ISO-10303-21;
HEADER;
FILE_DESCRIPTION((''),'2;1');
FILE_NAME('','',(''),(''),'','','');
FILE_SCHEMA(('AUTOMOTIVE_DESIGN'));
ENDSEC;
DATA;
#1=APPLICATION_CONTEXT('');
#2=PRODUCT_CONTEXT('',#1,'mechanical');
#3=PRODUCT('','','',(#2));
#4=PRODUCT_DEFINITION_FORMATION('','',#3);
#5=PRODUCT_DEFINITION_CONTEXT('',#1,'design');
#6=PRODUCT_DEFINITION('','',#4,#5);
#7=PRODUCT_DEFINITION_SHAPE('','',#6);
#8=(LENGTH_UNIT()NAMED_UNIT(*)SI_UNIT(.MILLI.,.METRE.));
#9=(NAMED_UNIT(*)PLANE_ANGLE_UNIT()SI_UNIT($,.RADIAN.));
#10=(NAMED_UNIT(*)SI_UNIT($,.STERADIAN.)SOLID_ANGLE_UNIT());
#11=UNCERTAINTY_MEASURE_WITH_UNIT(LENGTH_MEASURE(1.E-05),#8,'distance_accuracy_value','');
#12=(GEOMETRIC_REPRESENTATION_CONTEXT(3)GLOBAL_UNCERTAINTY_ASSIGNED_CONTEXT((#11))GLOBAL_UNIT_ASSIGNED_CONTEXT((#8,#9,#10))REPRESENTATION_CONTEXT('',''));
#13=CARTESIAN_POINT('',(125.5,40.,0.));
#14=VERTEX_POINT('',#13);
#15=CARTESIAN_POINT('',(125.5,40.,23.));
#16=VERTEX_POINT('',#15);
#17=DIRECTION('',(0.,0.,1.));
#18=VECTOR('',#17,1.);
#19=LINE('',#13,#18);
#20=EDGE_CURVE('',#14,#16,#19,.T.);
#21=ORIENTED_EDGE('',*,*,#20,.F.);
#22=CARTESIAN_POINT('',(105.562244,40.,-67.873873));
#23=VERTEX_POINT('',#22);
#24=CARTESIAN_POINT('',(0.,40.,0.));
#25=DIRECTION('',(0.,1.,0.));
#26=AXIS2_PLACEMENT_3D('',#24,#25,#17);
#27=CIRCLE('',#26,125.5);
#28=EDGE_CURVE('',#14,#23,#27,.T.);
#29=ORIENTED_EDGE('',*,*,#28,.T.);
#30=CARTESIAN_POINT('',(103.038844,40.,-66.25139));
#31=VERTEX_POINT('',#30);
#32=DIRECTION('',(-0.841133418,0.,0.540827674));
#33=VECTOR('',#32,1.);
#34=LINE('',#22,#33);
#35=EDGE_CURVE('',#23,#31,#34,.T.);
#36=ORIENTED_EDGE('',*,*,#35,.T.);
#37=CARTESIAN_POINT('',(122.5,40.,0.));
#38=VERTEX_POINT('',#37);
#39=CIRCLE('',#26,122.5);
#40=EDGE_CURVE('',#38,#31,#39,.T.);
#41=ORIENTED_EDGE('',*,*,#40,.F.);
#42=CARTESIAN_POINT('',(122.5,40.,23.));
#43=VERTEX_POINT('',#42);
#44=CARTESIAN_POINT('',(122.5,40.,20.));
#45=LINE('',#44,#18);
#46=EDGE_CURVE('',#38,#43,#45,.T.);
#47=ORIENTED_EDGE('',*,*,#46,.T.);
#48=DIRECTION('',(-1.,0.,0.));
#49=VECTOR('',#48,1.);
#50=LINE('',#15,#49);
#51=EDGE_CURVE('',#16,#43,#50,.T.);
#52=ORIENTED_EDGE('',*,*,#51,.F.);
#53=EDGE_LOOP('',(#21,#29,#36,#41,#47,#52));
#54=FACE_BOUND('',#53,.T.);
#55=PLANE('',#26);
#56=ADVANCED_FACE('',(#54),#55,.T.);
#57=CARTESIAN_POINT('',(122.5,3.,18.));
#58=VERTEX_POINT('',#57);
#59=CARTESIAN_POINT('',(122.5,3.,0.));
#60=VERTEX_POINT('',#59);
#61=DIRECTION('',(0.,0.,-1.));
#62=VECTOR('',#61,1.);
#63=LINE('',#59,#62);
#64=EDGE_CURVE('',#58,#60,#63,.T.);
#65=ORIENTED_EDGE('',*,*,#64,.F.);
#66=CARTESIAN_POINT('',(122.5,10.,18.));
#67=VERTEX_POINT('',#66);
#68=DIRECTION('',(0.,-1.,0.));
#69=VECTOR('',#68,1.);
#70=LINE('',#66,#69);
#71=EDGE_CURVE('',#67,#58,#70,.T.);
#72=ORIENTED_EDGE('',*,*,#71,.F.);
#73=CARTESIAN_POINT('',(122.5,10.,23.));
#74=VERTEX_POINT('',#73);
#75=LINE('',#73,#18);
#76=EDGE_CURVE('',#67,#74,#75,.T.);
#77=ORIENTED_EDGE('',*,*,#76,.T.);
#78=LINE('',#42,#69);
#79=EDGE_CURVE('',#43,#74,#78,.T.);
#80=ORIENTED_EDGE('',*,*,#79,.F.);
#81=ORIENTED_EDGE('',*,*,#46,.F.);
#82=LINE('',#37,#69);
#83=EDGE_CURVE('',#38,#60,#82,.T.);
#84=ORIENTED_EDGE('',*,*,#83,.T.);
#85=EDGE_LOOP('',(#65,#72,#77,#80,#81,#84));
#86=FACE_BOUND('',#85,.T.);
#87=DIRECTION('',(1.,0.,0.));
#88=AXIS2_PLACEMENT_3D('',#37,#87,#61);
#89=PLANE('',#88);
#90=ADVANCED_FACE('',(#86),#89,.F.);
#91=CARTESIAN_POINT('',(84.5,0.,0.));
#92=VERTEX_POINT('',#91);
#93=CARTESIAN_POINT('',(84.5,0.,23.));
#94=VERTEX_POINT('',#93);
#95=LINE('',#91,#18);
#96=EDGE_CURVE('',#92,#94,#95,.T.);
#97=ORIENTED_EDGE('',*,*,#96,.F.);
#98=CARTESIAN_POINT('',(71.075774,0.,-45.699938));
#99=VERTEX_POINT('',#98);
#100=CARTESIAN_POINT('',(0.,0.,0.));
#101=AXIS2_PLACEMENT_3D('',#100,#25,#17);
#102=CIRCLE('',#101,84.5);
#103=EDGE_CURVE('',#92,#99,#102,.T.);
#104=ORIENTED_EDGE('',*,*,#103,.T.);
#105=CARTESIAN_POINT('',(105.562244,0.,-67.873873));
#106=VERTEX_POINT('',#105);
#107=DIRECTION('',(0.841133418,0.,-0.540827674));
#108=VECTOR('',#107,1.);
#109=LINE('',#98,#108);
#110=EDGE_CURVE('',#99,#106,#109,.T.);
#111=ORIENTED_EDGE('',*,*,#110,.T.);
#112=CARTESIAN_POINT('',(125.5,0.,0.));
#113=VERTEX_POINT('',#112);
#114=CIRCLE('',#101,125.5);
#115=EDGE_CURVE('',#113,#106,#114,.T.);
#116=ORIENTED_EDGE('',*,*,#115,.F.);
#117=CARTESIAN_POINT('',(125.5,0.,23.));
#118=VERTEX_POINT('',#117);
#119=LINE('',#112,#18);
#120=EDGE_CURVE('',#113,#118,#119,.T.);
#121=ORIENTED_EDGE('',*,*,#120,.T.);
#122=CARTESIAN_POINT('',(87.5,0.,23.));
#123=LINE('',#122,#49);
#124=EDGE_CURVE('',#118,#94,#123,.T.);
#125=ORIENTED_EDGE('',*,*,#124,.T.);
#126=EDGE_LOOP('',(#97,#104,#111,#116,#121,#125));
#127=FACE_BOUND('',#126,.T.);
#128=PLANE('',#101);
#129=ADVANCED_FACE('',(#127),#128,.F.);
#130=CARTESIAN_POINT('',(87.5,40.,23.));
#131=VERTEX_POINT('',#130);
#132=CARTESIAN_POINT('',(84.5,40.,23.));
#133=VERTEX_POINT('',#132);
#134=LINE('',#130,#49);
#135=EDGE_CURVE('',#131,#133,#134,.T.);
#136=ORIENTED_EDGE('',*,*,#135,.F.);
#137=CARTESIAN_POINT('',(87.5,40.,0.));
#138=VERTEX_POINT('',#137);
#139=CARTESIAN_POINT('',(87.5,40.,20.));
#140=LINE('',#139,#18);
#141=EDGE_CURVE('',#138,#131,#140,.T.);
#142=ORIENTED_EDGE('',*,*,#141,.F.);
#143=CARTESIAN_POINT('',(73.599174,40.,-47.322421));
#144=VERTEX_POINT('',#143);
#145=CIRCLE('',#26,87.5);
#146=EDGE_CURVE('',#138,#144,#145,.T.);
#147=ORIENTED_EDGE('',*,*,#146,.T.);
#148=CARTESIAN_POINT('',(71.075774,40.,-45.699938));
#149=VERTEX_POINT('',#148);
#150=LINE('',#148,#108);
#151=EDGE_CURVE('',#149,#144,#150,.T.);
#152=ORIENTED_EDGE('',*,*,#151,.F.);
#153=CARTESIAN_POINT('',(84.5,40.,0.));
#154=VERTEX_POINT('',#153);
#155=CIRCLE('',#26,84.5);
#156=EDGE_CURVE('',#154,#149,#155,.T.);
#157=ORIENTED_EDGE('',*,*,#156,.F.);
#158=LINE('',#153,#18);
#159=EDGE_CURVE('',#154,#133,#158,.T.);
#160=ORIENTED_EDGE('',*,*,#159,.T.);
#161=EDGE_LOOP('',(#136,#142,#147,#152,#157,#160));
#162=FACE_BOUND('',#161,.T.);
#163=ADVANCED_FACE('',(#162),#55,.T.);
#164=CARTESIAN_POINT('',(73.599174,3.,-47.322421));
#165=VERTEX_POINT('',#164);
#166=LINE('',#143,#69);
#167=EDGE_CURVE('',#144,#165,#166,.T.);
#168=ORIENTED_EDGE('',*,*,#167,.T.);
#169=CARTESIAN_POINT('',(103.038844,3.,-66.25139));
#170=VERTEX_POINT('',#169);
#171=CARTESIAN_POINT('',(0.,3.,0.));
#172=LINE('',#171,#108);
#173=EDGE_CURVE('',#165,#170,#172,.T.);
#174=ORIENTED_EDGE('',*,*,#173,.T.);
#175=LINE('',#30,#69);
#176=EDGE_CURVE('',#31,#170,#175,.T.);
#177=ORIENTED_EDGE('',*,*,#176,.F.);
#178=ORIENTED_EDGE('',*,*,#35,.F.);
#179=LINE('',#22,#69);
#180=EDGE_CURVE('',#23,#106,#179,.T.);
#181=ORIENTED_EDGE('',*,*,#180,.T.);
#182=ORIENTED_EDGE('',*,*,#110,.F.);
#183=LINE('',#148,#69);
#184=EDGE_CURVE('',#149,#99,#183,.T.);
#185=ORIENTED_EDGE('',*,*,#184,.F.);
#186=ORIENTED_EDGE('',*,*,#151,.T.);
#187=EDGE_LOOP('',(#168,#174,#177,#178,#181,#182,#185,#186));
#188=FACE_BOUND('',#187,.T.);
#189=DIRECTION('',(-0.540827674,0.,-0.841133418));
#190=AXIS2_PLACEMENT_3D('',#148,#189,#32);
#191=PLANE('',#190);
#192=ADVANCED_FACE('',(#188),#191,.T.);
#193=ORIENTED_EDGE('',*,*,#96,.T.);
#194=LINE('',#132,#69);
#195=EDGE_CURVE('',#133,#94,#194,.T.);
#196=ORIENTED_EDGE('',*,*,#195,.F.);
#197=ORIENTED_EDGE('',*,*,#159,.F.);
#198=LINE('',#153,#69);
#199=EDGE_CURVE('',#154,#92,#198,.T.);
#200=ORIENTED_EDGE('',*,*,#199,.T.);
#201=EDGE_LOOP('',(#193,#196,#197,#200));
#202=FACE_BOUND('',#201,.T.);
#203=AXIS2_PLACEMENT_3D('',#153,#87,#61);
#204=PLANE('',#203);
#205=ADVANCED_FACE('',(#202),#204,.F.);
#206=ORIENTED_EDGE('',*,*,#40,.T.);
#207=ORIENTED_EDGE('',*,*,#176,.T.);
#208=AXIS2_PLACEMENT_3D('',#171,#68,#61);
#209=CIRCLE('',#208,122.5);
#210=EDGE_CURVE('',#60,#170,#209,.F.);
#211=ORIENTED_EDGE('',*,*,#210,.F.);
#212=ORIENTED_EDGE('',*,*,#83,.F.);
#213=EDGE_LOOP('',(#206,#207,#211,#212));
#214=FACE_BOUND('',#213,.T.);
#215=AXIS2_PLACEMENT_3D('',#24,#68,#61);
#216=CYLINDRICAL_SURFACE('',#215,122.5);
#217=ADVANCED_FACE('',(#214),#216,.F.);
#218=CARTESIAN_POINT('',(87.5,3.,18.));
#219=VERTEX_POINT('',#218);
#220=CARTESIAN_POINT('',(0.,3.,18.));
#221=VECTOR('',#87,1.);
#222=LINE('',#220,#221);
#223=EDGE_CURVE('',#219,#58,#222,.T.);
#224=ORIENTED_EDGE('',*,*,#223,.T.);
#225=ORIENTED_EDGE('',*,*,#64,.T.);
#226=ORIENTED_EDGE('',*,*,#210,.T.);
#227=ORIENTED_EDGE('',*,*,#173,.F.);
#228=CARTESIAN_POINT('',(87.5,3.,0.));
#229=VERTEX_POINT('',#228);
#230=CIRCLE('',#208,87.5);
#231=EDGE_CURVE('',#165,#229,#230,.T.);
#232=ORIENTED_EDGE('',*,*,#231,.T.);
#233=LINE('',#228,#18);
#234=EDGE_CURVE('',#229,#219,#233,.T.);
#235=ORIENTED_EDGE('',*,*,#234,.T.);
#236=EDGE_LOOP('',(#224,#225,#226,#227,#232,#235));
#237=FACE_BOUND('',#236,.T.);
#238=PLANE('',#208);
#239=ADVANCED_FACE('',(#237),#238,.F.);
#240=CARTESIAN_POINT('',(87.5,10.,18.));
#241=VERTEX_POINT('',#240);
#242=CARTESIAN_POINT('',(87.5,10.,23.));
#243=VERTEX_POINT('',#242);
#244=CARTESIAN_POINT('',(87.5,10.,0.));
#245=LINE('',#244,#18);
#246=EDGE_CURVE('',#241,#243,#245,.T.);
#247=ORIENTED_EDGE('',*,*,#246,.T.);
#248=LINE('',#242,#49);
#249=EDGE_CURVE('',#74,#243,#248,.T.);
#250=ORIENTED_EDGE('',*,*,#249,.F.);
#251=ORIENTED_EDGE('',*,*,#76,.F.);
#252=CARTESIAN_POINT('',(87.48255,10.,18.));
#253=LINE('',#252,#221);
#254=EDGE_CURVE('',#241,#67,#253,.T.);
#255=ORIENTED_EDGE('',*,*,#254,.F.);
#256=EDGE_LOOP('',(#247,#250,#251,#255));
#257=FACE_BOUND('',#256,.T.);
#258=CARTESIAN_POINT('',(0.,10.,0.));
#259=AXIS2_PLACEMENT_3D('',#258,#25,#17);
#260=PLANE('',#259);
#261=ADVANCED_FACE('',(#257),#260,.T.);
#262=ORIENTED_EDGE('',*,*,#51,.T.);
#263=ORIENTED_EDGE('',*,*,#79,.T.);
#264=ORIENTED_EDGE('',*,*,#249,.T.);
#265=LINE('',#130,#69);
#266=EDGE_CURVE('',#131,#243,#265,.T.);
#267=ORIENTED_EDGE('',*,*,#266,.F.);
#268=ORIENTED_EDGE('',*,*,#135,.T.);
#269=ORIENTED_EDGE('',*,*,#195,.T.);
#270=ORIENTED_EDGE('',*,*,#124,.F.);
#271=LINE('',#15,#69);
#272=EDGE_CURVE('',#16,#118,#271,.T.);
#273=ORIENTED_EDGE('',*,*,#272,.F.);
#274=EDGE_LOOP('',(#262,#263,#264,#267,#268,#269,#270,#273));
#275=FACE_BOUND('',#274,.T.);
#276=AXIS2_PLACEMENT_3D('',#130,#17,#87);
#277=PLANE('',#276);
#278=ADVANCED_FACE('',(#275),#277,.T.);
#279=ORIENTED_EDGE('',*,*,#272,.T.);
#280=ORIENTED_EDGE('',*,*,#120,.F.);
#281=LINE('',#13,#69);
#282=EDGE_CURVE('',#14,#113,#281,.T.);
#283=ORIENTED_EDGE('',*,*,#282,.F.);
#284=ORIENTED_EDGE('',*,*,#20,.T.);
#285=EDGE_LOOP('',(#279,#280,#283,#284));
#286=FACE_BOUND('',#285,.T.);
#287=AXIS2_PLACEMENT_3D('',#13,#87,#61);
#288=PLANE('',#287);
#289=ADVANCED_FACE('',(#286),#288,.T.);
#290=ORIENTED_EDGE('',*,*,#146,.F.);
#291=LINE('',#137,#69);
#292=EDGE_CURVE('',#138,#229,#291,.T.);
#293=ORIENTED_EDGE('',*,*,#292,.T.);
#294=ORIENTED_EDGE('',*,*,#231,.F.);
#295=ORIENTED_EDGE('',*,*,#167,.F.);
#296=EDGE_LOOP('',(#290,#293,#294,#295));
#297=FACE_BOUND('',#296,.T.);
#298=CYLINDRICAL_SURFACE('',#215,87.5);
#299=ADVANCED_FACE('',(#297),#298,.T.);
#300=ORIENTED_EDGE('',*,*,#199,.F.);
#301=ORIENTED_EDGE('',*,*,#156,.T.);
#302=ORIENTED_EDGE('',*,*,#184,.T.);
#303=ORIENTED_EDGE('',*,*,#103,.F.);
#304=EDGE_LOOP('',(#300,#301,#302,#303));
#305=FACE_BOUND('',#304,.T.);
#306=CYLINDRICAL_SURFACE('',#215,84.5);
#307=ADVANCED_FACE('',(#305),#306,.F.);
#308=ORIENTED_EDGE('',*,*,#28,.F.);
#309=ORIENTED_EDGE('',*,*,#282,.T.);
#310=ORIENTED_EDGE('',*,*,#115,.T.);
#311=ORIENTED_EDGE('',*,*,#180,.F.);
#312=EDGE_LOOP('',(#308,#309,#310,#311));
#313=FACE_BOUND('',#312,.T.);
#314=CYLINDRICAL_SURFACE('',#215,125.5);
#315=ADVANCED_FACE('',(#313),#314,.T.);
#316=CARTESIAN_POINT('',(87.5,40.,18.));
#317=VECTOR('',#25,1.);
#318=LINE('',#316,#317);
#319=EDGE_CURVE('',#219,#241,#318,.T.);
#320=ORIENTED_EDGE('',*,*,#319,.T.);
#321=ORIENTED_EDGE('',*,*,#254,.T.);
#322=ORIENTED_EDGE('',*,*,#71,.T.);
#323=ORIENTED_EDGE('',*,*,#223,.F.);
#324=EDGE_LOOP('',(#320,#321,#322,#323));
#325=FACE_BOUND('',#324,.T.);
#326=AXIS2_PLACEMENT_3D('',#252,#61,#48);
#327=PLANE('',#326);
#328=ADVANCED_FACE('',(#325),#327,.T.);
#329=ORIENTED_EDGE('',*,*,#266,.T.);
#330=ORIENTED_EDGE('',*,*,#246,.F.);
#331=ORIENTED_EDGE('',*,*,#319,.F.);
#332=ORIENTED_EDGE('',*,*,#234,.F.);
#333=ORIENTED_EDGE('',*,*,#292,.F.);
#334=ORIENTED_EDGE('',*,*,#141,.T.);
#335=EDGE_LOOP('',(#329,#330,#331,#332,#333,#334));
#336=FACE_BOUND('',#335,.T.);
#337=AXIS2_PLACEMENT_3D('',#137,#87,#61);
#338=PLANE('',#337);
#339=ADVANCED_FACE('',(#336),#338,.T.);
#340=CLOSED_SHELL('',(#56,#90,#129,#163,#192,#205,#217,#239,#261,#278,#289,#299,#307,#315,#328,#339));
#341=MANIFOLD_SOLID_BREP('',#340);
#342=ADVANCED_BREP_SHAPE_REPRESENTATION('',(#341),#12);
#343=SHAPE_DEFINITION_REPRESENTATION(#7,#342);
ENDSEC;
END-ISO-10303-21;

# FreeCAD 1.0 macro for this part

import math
import FreeCAD as App
import Part
import Sketcher
from FreeCAD import Vector
Q = App.Units.Quantity

doc = App.newDocument("Part")
body = doc.addObject("PartDesign::Body", "Body")

# Sketch on XZ plane
sketch1 = body.newObject("Sketcher::SketchObject", "Sketch")
sketch1.AttachmentSupport = (doc.getObject("XZ_Plane"), [""])
sketch1.MapMode = "FlatFace"
sketch1.addGeometry(Part.LineSegment(Vector(87.5, 23, 0), Vector(87.5, 0, 0)), False)
sketch1.addGeometry(Part.ArcOfCircle(Part.Circle(Vector(0, 0, 0), Vector(0, 0, 1), 87.5), math.radians(-33), math.radians(0)), False)
sketch1.addGeometry(Part.LineSegment(Vector(73.6, -47.3, 0), Vector(71.1, -45.7, 0)), False)
sketch1.addGeometry(Part.ArcOfCircle(Part.Circle(Vector(0, 0, 0), Vector(0, 0, 1), 84.5), math.radians(-33), math.radians(0)), False)
sketch1.addGeometry(Part.LineSegment(Vector(84.5, 0, 0), Vector(84.5, 23, 0)), False)
sketch1.addGeometry(Part.LineSegment(Vector(84.5, 23, 0), Vector(87.5, 23, 0)), False)
sketch1.addConstraint(Sketcher.Constraint("Tangent", 0, 2, 1, 2))
sketch1.addConstraint(Sketcher.Constraint("Coincident", 1, 1, 2, 1))
sketch1.addConstraint(Sketcher.Constraint("Coincident", 2, 2, 3, 1))
sketch1.addConstraint(Sketcher.Constraint("Tangent", 3, 2, 4, 1))
sketch1.addConstraint(Sketcher.Constraint("Coincident", 4, 2, 5, 1))
sketch1.addConstraint(Sketcher.Constraint("Coincident", 5, 2, 0, 1))
sketch1.addConstraint(Sketcher.Constraint("Vertical", 0))
sketch1.addConstraint(Sketcher.Constraint("Vertical", 4))
sketch1.addConstraint(Sketcher.Constraint("Horizontal", 5))
sketch1.addConstraint(Sketcher.Constraint("Coincident", 1, 3, -1, 1))
sketch1.addConstraint(Sketcher.Constraint("Coincident", 3, 3, -1, 1))
sketch1.addConstraint(Sketcher.Constraint("Radius", 1, Q("87.5 mm")))
sketch1.addConstraint(Sketcher.Constraint("Radius", 3, Q("84.5 mm")))
sketch1.addConstraint(Sketcher.Constraint("DistanceY", 0, 2, 0, 1, Q("23 mm")))
sketch1.addConstraint(Sketcher.Constraint("Angle", 2, Q("147.26 deg")))
sketch1.addConstraint(Sketcher.Constraint("DistanceY", 1, 1, -1, 1, Q("47.322421 mm")))
pad1 = body.newObject("PartDesign::Pad", "Pad")
pad1.Profile = sketch1
pad1.Length = 40
pad1.Reversed = True
body2 = doc.addObject("PartDesign::Body", "Body001")

# Sketch on XZ plane
sketch2 = body2.newObject("Sketcher::SketchObject", "Sketch001")
sketch2.AttachmentSupport = (doc.getObject("XZ_Plane001"), [""])
sketch2.MapMode = "FlatFace"
sketch2.addGeometry(Part.LineSegment(Vector(122.5, 0, 0), Vector(122.5, 23, 0)), False)
sketch2.addGeometry(Part.LineSegment(Vector(122.5, 23, 0), Vector(125.5, 23, 0)), False)
sketch2.addGeometry(Part.LineSegment(Vector(125.5, 23, 0), Vector(125.5, 0, 0)), False)
sketch2.addGeometry(Part.ArcOfCircle(Part.Circle(Vector(0, 0, 0), Vector(0, 0, 1), 125.5), math.radians(-33), math.radians(0)), False)
sketch2.addGeometry(Part.LineSegment(Vector(105.6, -67.9, 0), Vector(103, -66.3, 0)), False)
sketch2.addGeometry(Part.ArcOfCircle(Part.Circle(Vector(0, 0, 0), Vector(0, 0, 1), 122.5), math.radians(-33), math.radians(0)), False)
sketch2.addConstraint(Sketcher.Constraint("Coincident", 0, 2, 1, 1))
sketch2.addConstraint(Sketcher.Constraint("Coincident", 1, 2, 2, 1))
sketch2.addConstraint(Sketcher.Constraint("Tangent", 2, 2, 3, 2))
sketch2.addConstraint(Sketcher.Constraint("Coincident", 3, 1, 4, 1))
sketch2.addConstraint(Sketcher.Constraint("Coincident", 4, 2, 5, 1))
sketch2.addConstraint(Sketcher.Constraint("Tangent", 5, 2, 0, 1))
sketch2.addConstraint(Sketcher.Constraint("Vertical", 0))
sketch2.addConstraint(Sketcher.Constraint("Horizontal", 1))
sketch2.addConstraint(Sketcher.Constraint("Vertical", 2))
sketch2.addConstraint(Sketcher.Constraint("Coincident", 3, 3, -1, 1))
sketch2.addConstraint(Sketcher.Constraint("Coincident", 5, 3, -1, 1))
sketch2.addConstraint(Sketcher.Constraint("Radius", 3, Q("125.5 mm")))
sketch2.addConstraint(Sketcher.Constraint("Radius", 5, Q("122.5 mm")))
sketch2.addConstraint(Sketcher.Constraint("DistanceY", 0, 1, 0, 2, Q("23 mm")))
sketch2.addConstraint(Sketcher.Constraint("Angle", 4, Q("147.26 deg")))
sketch2.addConstraint(Sketcher.Constraint("DistanceY", 4, 2, -1, 1, Q("66.25139 mm")))
pad2 = body2.newObject("PartDesign::Pad", "Pad001")
pad2.Profile = sketch2
pad2.Length = 40
pad2.Reversed = True
body.AllowCompound = True
doc.recompute()

boolean = body.newObject("PartDesign::Boolean", "Boolean")
boolean.Type = "Fuse"
boolean.addObjects([body2])

# Sketch on XZ plane
sketch3 = body.newObject("Sketcher::SketchObject", "Sketch002")
sketch3.AttachmentSupport = (doc.getObject("XZ_Plane"), [""])
sketch3.MapMode = "FlatFace"
sketch3.addGeometry(Part.LineSegment(Vector(122, 23, 0), Vector(88, 23, 0)), False)
sketch3.addGeometry(Part.LineSegment(Vector(88, 23, 0), Vector(87, 18, 0)), False)
sketch3.addGeometry(Part.LineSegment(Vector(87, 18, 0), Vector(122, 18, 0)), False)
sketch3.addGeometry(Part.LineSegment(Vector(122, 18, 0), Vector(122, 23, 0)), False)
sketch3.addConstraint(Sketcher.Constraint("Coincident", 0, 2, 1, 1))
sketch3.addConstraint(Sketcher.Constraint("Coincident", 1, 2, 2, 1))
sketch3.addConstraint(Sketcher.Constraint("Coincident", 2, 2, 3, 1))
sketch3.addConstraint(Sketcher.Constraint("Coincident", 3, 2, 0, 1))
sketch3.addConstraint(Sketcher.Constraint("Horizontal", 0))
sketch3.addConstraint(Sketcher.Constraint("Horizontal", 2))
sketch3.addConstraint(Sketcher.Constraint("Vertical", 3))
sketch3.addConstraint(Sketcher.Constraint("DistanceX", 0, 2, 0, 1, Q("35 mm")))
sketch3.addConstraint(Sketcher.Constraint("DistanceY", 3, 1, 3, 2, Q("5 mm")))
sketch3.addConstraint(Sketcher.Constraint("DistanceY", -1, 1, 0, 2, Q("23 mm")))
sketch3.addConstraint(Sketcher.Constraint("DistanceX", -1, 1, 0, 2, Q("87.5 mm")))
sketch3.addConstraint(Sketcher.Constraint("DistanceX", 2, 1, 2, 2, Q("35.01745 mm")))
pad3 = body.newObject("PartDesign::Pad", "Pad002")
pad3.Profile = sketch3
pad3.Length = 10
pad3.Reversed = True

# Sketch on XZ plane
sketch4 = body.newObject("Sketcher::SketchObject", "Sketch003")
sketch4.AttachmentSupport = (doc.getObject("XZ_Plane"), [""])
sketch4.MapMode = "FlatFace"
sketch4.addGeometry(Part.LineSegment(Vector(74, -47, 0), Vector(103, -66, 0)), False)
sketch4.addGeometry(Part.ArcOfCircle(Part.Circle(Vector(0, 0, 0), Vector(0, 0, 1), 122), math.radians(-33), math.radians(0)), False)
sketch4.addGeometry(Part.LineSegment(Vector(122, 0, 0), Vector(122, 18, 0)), False)
sketch4.addGeometry(Part.LineSegment(Vector(122, 18, 0), Vector(88, 18, 0)), False)
sketch4.addGeometry(Part.LineSegment(Vector(88, 18, 0), Vector(88, 0, 0)), False)
sketch4.addGeometry(Part.ArcOfCircle(Part.Circle(Vector(0, 0, 0), Vector(0, 0, 1), 87), math.radians(-33), math.radians(0)), False)
sketch4.addConstraint(Sketcher.Constraint("Coincident", 0, 2, 1, 1))
sketch4.addConstraint(Sketcher.Constraint("Tangent", 1, 2, 2, 1))
sketch4.addConstraint(Sketcher.Constraint("Coincident", 2, 2, 3, 1))
sketch4.addConstraint(Sketcher.Constraint("Coincident", 3, 2, 4, 1))
sketch4.addConstraint(Sketcher.Constraint("Tangent", 4, 2, 5, 2))
sketch4.addConstraint(Sketcher.Constraint("Coincident", 5, 1, 0, 1))
sketch4.addConstraint(Sketcher.Constraint("Vertical", 2))
sketch4.addConstraint(Sketcher.Constraint("Horizontal", 3))
sketch4.addConstraint(Sketcher.Constraint("Vertical", 4))
sketch4.addConstraint(Sketcher.Constraint("Coincident", 1, 3, -1, 1))
sketch4.addConstraint(Sketcher.Constraint("Coincident", 5, 3, -1, 1))
sketch4.addConstraint(Sketcher.Constraint("Radius", 1, Q("122.5 mm")))
sketch4.addConstraint(Sketcher.Constraint("Radius", 5, Q("87.5 mm")))
sketch4.addConstraint(Sketcher.Constraint("DistanceY", 2, 1, 2, 2, Q("18 mm")))
sketch4.addConstraint(Sketcher.Constraint("Angle", 0, Q("-32.74 deg")))
sketch4.addConstraint(Sketcher.Constraint("DistanceY", 0, 2, -1, 1, Q("66.25139 mm")))
pad4 = body.newObject("PartDesign::Pad", "Pad003")
pad4.Profile = sketch4
pad4.Length = 3
pad4.Reversed = True

doc.recompute()
